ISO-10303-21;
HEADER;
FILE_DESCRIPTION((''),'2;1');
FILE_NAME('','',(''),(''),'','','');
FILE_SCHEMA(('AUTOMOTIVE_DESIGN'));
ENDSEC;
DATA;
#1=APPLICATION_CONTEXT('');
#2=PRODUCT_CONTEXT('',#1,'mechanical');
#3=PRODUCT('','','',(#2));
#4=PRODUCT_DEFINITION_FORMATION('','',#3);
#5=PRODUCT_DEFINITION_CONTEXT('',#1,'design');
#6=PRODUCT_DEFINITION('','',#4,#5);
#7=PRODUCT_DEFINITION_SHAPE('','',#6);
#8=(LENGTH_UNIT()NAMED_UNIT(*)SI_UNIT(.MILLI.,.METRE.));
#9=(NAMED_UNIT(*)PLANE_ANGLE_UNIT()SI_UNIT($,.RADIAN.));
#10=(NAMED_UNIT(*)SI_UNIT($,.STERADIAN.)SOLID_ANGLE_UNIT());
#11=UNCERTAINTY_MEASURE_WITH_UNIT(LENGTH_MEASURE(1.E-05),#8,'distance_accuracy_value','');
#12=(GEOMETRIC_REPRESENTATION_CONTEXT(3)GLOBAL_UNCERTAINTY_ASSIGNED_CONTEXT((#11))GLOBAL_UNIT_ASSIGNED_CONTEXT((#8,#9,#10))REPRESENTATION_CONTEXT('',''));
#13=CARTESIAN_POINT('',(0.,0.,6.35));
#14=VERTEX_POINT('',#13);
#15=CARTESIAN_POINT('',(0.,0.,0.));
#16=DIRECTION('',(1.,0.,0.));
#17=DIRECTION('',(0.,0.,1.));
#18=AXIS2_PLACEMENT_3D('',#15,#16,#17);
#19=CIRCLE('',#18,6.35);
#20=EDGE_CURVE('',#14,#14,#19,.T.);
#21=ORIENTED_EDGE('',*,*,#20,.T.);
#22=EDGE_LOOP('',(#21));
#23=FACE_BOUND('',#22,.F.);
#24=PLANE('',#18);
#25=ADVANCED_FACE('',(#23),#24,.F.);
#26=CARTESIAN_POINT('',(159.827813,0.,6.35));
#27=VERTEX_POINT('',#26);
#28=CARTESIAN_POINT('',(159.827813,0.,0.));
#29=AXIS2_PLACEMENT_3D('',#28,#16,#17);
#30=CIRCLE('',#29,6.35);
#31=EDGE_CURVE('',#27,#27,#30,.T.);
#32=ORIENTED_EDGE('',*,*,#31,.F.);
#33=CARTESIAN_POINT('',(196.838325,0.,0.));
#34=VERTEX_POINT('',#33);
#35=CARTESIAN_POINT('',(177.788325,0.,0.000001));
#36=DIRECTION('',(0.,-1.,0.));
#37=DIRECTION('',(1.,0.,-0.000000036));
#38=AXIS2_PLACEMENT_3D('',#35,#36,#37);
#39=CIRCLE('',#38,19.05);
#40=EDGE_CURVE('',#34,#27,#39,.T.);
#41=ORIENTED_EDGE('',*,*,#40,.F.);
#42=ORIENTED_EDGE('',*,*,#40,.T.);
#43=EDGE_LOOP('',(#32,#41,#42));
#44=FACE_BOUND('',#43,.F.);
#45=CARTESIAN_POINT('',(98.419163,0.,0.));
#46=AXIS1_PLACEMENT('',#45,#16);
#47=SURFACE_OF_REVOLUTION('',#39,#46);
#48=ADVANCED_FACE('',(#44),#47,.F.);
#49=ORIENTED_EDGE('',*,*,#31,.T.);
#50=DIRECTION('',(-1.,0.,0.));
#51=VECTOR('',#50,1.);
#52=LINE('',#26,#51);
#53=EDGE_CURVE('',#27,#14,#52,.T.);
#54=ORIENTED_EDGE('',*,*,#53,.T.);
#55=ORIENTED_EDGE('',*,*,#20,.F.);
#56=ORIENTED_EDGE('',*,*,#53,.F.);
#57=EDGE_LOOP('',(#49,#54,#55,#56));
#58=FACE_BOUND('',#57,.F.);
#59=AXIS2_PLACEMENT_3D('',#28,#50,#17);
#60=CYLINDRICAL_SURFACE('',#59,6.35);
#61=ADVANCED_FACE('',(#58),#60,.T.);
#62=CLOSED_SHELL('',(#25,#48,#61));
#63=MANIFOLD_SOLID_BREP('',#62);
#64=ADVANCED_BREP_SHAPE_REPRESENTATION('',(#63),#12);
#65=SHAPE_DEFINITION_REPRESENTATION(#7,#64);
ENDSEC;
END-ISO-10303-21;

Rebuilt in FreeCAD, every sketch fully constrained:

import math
import FreeCAD as App
import Part
import Sketcher
Q = App.Units.Quantity

doc = App.newDocument("Part")
body = doc.addObject("PartDesign::Body", "Body")

sketch1 = body.newObject("Sketcher::SketchObject", "Sketch")
sketch1.AttachmentSupport = (doc.getObject("XZ_Plane"), [""])
sketch1.MapMode = "FlatFace"
sketch1.addGeometry([
    Part.ArcOfCircle(Part.Circle(App.Vector(177.788325, 0.000001, 0), App.Vector(0, 0, 1), 19.05), math.radians(-0.000002), math.radians(160.528781)),
    Part.LineSegment(App.Vector(159.827813, 6.35, 0), App.Vector(0, 6.35, 0)),
    Part.LineSegment(App.Vector(0, 6.35, 0), App.Vector(0, 0, 0)),
    Part.LineSegment(App.Vector(0, 0, 0), App.Vector(196.838325, 0, 0)),
], False)
sketch1.addConstraint([
    Sketcher.Constraint("Coincident", 0, 2, 1, 1),
    Sketcher.Constraint("Coincident", 1, 2, 2, 1),
    Sketcher.Constraint("Coincident", 2, 2, 3, 1),
    Sketcher.Constraint("Coincident", 3, 2, 0, 1),
    Sketcher.Constraint("Horizontal", 1),
    Sketcher.Constraint("Vertical", 2),
    Sketcher.Constraint("Horizontal", 3),
    Sketcher.Constraint("Coincident", 2, 2, -1, 1),
    Sketcher.Constraint("PointOnObject", 0, 3, -1),
    Sketcher.Constraint("Radius", 0, Q("0.75 in")),
    Sketcher.Constraint("DistanceY", 2, 2, 2, 1, Q("0.25 in")),
    Sketcher.Constraint("DistanceX", 1, 2, 1, 1, 159.827813),
])
revolution = body.newObject("PartDesign::Revolution", "Revolution")
revolution.Profile = sketch1
revolution.ReferenceAxis = (sketch1, ["H_Axis"])
revolution.Angle = 360

doc.recompute()
